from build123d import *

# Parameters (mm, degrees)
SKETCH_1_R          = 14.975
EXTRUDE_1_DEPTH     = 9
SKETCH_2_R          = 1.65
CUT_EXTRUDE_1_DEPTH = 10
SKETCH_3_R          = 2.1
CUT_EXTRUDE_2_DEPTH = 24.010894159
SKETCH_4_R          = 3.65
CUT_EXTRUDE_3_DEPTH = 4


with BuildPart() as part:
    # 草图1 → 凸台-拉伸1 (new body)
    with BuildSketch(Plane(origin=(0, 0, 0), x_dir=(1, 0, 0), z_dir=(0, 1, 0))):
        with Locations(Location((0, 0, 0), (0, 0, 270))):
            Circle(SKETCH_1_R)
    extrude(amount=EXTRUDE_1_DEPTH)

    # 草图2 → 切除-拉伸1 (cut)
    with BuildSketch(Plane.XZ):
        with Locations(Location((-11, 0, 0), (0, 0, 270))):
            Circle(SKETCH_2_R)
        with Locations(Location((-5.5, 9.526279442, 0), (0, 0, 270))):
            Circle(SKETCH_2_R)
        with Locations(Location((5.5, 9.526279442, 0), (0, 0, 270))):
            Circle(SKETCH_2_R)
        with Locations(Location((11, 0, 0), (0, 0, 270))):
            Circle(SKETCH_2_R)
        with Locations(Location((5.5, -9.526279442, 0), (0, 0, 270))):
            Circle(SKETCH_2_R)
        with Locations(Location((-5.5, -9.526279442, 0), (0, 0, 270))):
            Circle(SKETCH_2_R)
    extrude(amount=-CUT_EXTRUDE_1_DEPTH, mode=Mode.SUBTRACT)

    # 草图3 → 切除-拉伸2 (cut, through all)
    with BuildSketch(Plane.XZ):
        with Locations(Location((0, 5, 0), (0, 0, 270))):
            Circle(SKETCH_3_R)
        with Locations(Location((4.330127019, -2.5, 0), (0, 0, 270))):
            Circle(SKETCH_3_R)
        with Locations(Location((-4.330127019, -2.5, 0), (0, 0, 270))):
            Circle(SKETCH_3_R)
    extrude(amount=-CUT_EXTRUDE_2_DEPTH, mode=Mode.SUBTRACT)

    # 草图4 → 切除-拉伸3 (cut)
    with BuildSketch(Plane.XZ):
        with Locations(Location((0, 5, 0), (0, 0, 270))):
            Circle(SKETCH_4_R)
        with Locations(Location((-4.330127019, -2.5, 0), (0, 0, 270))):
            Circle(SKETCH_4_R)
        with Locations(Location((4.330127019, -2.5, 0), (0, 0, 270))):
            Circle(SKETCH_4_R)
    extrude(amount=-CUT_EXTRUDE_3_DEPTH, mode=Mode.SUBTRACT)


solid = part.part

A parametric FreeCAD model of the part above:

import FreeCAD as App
import Part
import Sketcher
from FreeCAD import Vector
Q = App.Units.Quantity

doc = App.newDocument("Part")
body = doc.addObject("PartDesign::Body", "Body")

# Sketch on XZ plane
sketch1 = body.newObject("Sketcher::SketchObject", "Sketch")
sketch1.AttachmentSupport = (doc.getObject("XZ_Plane"), [""])
sketch1.MapMode = "FlatFace"
sketch1.addGeometry(Part.Circle(Vector(0, 0, 0), Vector(0, 0, 1), 15), False)
sketch1.addConstraint([
    Sketcher.Constraint("Coincident", 0, 3, -1, 1),
    Sketcher.Constraint("Diameter", 0, Q("29.95 mm")),
])
pad1 = body.newObject("PartDesign::Pad", "Pad")
pad1.Profile = sketch1
pad1.Length = 9
pad1.Reversed = True

# Sketch on XZ plane
sketch2 = body.newObject("Sketcher::SketchObject", "Sketch001")
sketch2.AttachmentSupport = (doc.getObject("XZ_Plane"), [""])
sketch2.MapMode = "FlatFace"
sketch2.addGeometry([
    Part.Circle(Vector(-11, 0, 0), Vector(0, 0, 1), 1.6),  # 0
    Part.Circle(Vector(-5.5, 9.5, 0), Vector(0, 0, 1), 1.6),  # 1
    Part.Circle(Vector(5.5, 9.5, 0), Vector(0, 0, 1), 1.6),  # 2
    Part.Circle(Vector(11, 0, 0), Vector(0, 0, 1), 1.6),  # 3
    Part.Circle(Vector(5.5, -9.5, 0), Vector(0, 0, 1), 1.6),  # 4
    Part.Circle(Vector(-5.5, -9.5, 0), Vector(0, 0, 1), 1.6),  # 5
], False)
sketch2.addConstraint([
    Sketcher.Constraint("Equal", 0, 1),
    Sketcher.Constraint("Equal", 1, 2),
    Sketcher.Constraint("Equal", 2, 3),
    Sketcher.Constraint("Equal", 3, 4),
    Sketcher.Constraint("Equal", 4, 5),
    Sketcher.Constraint("Symmetric", 0, 3, 3, 3, -1, 1),
    Sketcher.Constraint("Symmetric", 1, 3, 4, 3, -1, 1),
    Sketcher.Constraint("Symmetric", 2, 3, 5, 3, -1, 1),
    Sketcher.Constraint("Symmetric", 1, 3, 2, 3, -2),
    Sketcher.Constraint("PointOnObject", 0, 3, -1),
    Sketcher.Constraint("Diameter", 0, Q("3.3 mm")),
    Sketcher.Constraint("DistanceX", 0, 3, -1, 1, Q("11 mm")),
    Sketcher.Constraint("DistanceX", 1, 3, 2, 3, Q("11 mm")),
    Sketcher.Constraint("DistanceY", -1, 1, 1, 3, Q("9.526279 mm")),
])
pocket1 = body.newObject("PartDesign::Pocket", "Pocket")
pocket1.Profile = sketch2
pocket1.Length = 10

# Sketch on XZ plane
sketch3 = body.newObject("Sketcher::SketchObject", "Sketch002")
sketch3.AttachmentSupport = (doc.getObject("XZ_Plane"), [""])
sketch3.MapMode = "FlatFace"
sketch3.addGeometry([
    Part.Circle(Vector(0, 5, 0), Vector(0, 0, 1), 2.1),
    Part.Circle(Vector(4.3, -2.5, 0), Vector(0, 0, 1), 2.1),
    Part.Circle(Vector(-4.3, -2.5, 0), Vector(0, 0, 1), 2.1),
], False)
sketch3.addConstraint([
    Sketcher.Constraint("Equal", 0, 1),
    Sketcher.Constraint("Equal", 1, 2),
    Sketcher.Constraint("Symmetric", 1, 3, 2, 3, -2),
    Sketcher.Constraint("PointOnObject", 0, 3, -2),
    Sketcher.Constraint("Diameter", 0, Q("4.2 mm")),
    Sketcher.Constraint("DistanceY", -1, 1, 0, 3, Q("5 mm")),
    Sketcher.Constraint("DistanceY", 1, 3, -1, 1, Q("2.5 mm")),
    Sketcher.Constraint("DistanceX", -1, 1, 1, 3, Q("4.330127 mm")),
])
pocket2 = body.newObject("PartDesign::Pocket", "Pocket001")
pocket2.Profile = sketch3
pocket2.Type = "ThroughAll"

# Sketch on XZ plane
sketch4 = body.newObject("Sketcher::SketchObject", "Sketch003")
sketch4.AttachmentSupport = (doc.getObject("XZ_Plane"), [""])
sketch4.MapMode = "FlatFace"
sketch4.addGeometry([
    Part.Circle(Vector(0, 5, 0), Vector(0, 0, 1), 3.6),
    Part.Circle(Vector(-4.3, -2.5, 0), Vector(0, 0, 1), 3.6),
    Part.Circle(Vector(4.3, -2.5, 0), Vector(0, 0, 1), 3.6),
], False)
sketch4.addConstraint([
    Sketcher.Constraint("Equal", 0, 1),
    Sketcher.Constraint("Equal", 1, 2),
    Sketcher.Constraint("Symmetric", 1, 3, 2, 3, -2),
    Sketcher.Constraint("PointOnObject", 0, 3, -2),
    Sketcher.Constraint("Diameter", 0, Q("7.3 mm")),
    Sketcher.Constraint("DistanceY", -1, 1, 0, 3, Q("5 mm")),
    Sketcher.Constraint("DistanceY", 1, 3, -1, 1, Q("2.5 mm")),
    Sketcher.Constraint("DistanceX", 1, 3, -1, 1, Q("4.330127 mm")),
])
pocket3 = body.newObject("PartDesign::Pocket", "Pocket002")
pocket3.Profile = sketch4
pocket3.Length = 4

doc.recompute()
